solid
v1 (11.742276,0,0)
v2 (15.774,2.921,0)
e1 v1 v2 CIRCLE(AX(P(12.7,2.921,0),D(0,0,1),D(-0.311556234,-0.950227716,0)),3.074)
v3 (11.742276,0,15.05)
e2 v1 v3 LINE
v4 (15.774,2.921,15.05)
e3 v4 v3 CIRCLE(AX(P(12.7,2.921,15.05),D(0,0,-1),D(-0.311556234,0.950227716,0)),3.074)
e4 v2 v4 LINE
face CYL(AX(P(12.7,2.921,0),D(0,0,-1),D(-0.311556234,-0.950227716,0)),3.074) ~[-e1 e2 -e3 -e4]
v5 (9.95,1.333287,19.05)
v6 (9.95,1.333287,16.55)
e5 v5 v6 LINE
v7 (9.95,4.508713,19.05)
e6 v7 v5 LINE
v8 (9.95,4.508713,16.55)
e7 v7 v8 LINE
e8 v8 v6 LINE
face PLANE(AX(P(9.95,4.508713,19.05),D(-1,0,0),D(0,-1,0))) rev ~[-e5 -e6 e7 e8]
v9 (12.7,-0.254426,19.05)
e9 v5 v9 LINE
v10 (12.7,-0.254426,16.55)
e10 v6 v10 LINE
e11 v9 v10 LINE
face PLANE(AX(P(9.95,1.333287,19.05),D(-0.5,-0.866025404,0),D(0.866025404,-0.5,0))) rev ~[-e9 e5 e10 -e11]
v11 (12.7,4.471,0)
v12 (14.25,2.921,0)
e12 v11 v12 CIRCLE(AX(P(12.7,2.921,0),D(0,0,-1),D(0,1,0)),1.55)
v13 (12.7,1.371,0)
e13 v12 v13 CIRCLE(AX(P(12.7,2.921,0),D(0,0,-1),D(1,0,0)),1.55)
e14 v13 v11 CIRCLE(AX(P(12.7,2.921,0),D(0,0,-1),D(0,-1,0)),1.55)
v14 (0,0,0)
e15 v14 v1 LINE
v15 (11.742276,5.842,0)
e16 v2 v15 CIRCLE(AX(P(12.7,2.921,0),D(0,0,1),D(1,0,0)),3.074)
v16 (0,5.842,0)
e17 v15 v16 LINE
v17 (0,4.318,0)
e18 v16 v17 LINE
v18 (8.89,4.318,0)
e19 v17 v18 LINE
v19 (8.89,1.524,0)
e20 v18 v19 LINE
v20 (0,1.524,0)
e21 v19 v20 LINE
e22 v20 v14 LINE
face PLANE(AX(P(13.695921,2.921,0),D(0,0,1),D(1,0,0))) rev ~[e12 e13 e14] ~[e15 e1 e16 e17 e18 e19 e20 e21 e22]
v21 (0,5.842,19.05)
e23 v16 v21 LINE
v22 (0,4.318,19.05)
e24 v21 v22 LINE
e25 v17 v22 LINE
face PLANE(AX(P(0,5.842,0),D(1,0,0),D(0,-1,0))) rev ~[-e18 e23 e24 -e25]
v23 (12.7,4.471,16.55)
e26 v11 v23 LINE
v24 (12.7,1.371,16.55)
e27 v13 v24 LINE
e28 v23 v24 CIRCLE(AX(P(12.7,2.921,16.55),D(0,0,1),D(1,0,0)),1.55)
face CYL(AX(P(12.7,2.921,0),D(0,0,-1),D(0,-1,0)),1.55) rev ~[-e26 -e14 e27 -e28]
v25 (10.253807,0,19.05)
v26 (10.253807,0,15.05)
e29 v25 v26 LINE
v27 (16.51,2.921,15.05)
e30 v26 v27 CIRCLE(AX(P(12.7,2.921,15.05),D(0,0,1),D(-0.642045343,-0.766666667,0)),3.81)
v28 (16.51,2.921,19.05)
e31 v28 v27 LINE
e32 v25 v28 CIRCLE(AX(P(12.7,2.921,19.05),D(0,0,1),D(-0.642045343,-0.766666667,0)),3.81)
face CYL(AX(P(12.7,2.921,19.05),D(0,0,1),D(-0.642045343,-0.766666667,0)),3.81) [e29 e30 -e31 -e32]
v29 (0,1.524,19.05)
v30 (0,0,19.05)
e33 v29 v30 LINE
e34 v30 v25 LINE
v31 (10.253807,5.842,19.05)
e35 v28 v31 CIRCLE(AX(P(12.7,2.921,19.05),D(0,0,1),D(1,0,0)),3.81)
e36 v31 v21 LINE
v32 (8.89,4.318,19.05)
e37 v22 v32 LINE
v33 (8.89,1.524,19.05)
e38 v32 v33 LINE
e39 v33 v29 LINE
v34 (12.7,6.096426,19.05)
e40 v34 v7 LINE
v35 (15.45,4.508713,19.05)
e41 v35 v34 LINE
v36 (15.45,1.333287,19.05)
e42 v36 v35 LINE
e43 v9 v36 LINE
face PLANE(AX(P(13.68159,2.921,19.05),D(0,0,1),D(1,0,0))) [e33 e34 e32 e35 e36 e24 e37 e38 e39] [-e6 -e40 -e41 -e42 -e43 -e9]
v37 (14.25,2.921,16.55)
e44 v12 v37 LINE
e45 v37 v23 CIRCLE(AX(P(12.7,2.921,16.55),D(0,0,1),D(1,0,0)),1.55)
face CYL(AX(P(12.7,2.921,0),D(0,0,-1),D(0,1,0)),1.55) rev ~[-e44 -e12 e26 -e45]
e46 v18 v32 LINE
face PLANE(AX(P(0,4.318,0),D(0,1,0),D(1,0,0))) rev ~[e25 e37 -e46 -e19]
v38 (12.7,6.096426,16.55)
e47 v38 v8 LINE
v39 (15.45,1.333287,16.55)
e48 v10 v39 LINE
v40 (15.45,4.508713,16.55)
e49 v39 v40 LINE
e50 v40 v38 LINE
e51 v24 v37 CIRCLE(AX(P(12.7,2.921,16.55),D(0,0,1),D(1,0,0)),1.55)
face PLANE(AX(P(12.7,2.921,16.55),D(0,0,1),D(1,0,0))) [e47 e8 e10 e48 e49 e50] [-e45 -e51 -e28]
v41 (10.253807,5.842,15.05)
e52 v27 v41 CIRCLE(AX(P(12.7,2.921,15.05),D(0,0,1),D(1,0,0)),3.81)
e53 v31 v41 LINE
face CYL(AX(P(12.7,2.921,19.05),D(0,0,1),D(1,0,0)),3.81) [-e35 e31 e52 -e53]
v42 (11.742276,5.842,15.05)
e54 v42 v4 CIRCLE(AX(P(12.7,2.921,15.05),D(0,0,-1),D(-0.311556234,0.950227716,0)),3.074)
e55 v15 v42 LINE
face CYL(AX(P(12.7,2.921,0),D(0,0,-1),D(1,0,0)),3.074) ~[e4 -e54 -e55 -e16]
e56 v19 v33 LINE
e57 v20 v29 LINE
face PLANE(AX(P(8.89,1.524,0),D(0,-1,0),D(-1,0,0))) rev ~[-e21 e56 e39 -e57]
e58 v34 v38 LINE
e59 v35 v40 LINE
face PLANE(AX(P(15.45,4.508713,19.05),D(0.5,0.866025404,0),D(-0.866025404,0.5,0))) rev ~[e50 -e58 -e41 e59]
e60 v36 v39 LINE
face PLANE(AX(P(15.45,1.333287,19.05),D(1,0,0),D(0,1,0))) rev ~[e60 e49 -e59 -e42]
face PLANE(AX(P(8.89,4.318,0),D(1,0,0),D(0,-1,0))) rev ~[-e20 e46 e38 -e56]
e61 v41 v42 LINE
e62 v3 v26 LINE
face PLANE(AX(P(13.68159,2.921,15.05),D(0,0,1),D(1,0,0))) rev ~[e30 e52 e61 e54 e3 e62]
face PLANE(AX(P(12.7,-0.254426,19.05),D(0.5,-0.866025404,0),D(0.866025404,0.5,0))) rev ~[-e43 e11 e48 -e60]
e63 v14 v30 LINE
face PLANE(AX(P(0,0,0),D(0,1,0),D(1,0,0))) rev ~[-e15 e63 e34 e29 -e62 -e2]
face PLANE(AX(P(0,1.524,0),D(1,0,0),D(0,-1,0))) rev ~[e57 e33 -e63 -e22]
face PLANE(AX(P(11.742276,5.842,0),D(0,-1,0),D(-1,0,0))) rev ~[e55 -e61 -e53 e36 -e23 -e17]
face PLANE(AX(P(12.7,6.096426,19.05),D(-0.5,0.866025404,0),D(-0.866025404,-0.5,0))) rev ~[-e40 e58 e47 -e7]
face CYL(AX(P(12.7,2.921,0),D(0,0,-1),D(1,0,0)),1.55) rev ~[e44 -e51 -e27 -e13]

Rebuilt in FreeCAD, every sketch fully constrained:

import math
import FreeCAD as App
import Part
import Sketcher
from FreeCAD import Vector
Q = App.Units.Quantity

doc = App.newDocument("Part")
body = doc.addObject("PartDesign::Body", "Body")

# Sketch on XY plane
sketch1 = body.newObject("Sketcher::SketchObject", "Sketch")
sketch1.AttachmentSupport = (doc.getObject("XY_Plane"), [""])
sketch1.MapMode = "FlatFace"
sketch1.addGeometry([
    Part.ArcOfCircle(Part.Circle(Vector(12.7, 2.9, 0), Vector(0, 0, 1), 3.1), math.radians(-108), math.radians(0)),  # 0
    Part.ArcOfCircle(Part.Circle(Vector(12.7, 2.9, 0), Vector(0, 0, 1), 3.1), math.radians(0), math.radians(108)),  # 1
    Part.LineSegment(Vector(11.7, 5.8, 0), Vector(0, 5.8, 0)),  # 2
    Part.LineSegment(Vector(0, 5.8, 0), Vector(0, 4.3, 0)),  # 3
    Part.LineSegment(Vector(0, 4.3, 0), Vector(8.9, 4.3, 0)),  # 4
    Part.LineSegment(Vector(8.9, 4.3, 0), Vector(8.9, 1.5, 0)),  # 5
    Part.LineSegment(Vector(8.9, 1.5, 0), Vector(0, 1.5, 0)),  # 6
    Part.LineSegment(Vector(0, 1.5, 0), Vector(0, 0, 0)),  # 7
    Part.LineSegment(Vector(0, 0, 0), Vector(11.7, 0, 0)),  # 8
    Part.ArcOfCircle(Part.Circle(Vector(12.7, 2.9, 0), Vector(0, 0, 1), 1.6), math.radians(0), math.radians(90)),  # 9
    Part.ArcOfCircle(Part.Circle(Vector(12.7, 2.9, 0), Vector(0, 0, 1), 1.6), math.radians(-90), math.radians(0)),  # 10
    Part.ArcOfCircle(Part.Circle(Vector(12.7, 2.9, 0), Vector(0, 0, 1), 1.6), math.radians(90), math.radians(270)),  # 11
], False)
sketch1.addConstraint([
    Sketcher.Constraint("Tangent", 0, 2, 1, 1),
    Sketcher.Constraint("Coincident", 1, 2, 2, 1),
    Sketcher.Constraint("Coincident", 2, 2, 3, 1),
    Sketcher.Constraint("Coincident", 3, 2, 4, 1),
    Sketcher.Constraint("Coincident", 4, 2, 5, 1),
    Sketcher.Constraint("Coincident", 5, 2, 6, 1),
    Sketcher.Constraint("Coincident", 6, 2, 7, 1),
    Sketcher.Constraint("Coincident", 7, 2, 8, 1),
    Sketcher.Constraint("Coincident", 8, 2, 0, 1),
    Sketcher.Constraint("Tangent", 9, 1, 10, 2),
    Sketcher.Constraint("Tangent", 10, 1, 11, 2),
    Sketcher.Constraint("Tangent", 11, 1, 9, 2),
    Sketcher.Constraint("Horizontal", 2),
    Sketcher.Constraint("Vertical", 3),
    Sketcher.Constraint("Horizontal", 4),
    Sketcher.Constraint("Vertical", 5),
    Sketcher.Constraint("Horizontal", 6),
    Sketcher.Constraint("Vertical", 7),
    Sketcher.Constraint("Horizontal", 8),
    Sketcher.Constraint("Coincident", 7, 2, -1, 1),
    Sketcher.Constraint("Coincident", 9, 3, 0, 3),
    Sketcher.Constraint("Equal", 0, 1),
    Sketcher.Constraint("PointOnObject", 2, 2, -2),
    Sketcher.Constraint("Horizontal", 11, 3, 0, 2),
    Sketcher.Constraint("Horizontal", 0, 2, 9, 1),
    Sketcher.Constraint("Vertical", 1, 2, 8, 2),
    Sketcher.Constraint("Vertical", 11, 3, 10, 1),
    Sketcher.Constraint("Vertical", 10, 1, 11, 1),
    Sketcher.Constraint("Equal", 3, 7),
    Sketcher.Constraint("DistanceX", 4, 1, 4, 2, Q("0.35 in")),
    Sketcher.Constraint("DistanceY", 3, 2, 3, 1, Q("0.06 in")),
    Sketcher.Constraint("DistanceY", 5, 2, 5, 1, Q("0.11 in")),
    Sketcher.Constraint("DistanceX", -1, 1, 0, 3, Q("0.5 in")),
    Sketcher.Constraint("Radius", 0, 3.074),
    Sketcher.Constraint("Radius", 9, 1.55),
])
pad1 = body.newObject("PartDesign::Pad", "Pad")
pad1.Profile = sketch1
pad1.Length = Q("0.75 in")

# Sketch on XY plane
sketch2 = body.newObject("Sketcher::SketchObject", "Sketch001")
sketch2.AttachmentSupport = (doc.getObject("XY_Plane"), [""])
sketch2.MapMode = "FlatFace"
sketch2.AttachmentOffset = App.Placement(Vector(0, 0, 0.75 * 25.4), App.Rotation())
sketch2.addGeometry([
    Part.ArcOfCircle(Part.Circle(Vector(12.7, 2.9, 0), Vector(0, 0, 1), 3.8), math.radians(-130), math.radians(0)),  # 0
    Part.ArcOfCircle(Part.Circle(Vector(12.7, 2.9, 0), Vector(0, 0, 1), 3.8), math.radians(0), math.radians(130)),  # 1
    Part.LineSegment(Vector(10.3, 5.8, 0), Vector(11.7, 5.8, 0)),  # 2
    Part.ArcOfCircle(Part.Circle(Vector(12.7, 2.9, 0), Vector(0, 0, 1), 3.1), math.radians(-108), math.radians(108)),  # 3
    Part.LineSegment(Vector(11.7, 0, 0), Vector(10.3, 0, 0)),  # 4
], False)
sketch2.addConstraint([
    Sketcher.Constraint("Tangent", 0, 2, 1, 1),
    Sketcher.Constraint("Coincident", 1, 2, 2, 1),
    Sketcher.Constraint("Coincident", 2, 2, 3, 2),
    Sketcher.Constraint("Coincident", 3, 1, 4, 1),
    Sketcher.Constraint("Coincident", 4, 2, 0, 1),
    Sketcher.Constraint("Horizontal", 2),
    Sketcher.Constraint("Horizontal", 4),
    Sketcher.Constraint("Coincident", 3, 3, 0, 3),
    Sketcher.Constraint("Equal", 0, 1),
    Sketcher.Constraint("PointOnObject", 3, 1, -1),
    Sketcher.Constraint("Horizontal", 3, 3, 0, 2),
    Sketcher.Constraint("Vertical", 2, 2, 3, 1),
    Sketcher.Constraint("Radius", 0, Q("0.15 in")),
    Sketcher.Constraint("DistanceX", -1, 1, 0, 3, Q("0.5 in")),
    Sketcher.Constraint("DistanceY", -1, 1, 1, 2, Q("0.23 in")),
    Sketcher.Constraint("Radius", 3, 3.074),
])
pad2 = body.newObject("PartDesign::Pad", "Pad001")
pad2.Profile = sketch2
pad2.Length = 4
pad2.Reversed = True

# Sketch on XY plane
sketch3 = body.newObject("Sketcher::SketchObject", "Sketch002")
sketch3.AttachmentSupport = (doc.getObject("XY_Plane"), [""])
sketch3.MapMode = "FlatFace"
sketch3.AttachmentOffset = App.Placement(Vector(0, 0, 0.75 * 25.4), App.Rotation())
sketch3.addGeometry([
    Part.LineSegment(Vector(15.4, 4.5, 0), Vector(12.7, 6.1, 0)),  # 0
    Part.LineSegment(Vector(12.7, 6.1, 0), Vector(9.9, 4.5, 0)),  # 1
    Part.LineSegment(Vector(9.9, 4.5, 0), Vector(9.9, 1.3, 0)),  # 2
    Part.LineSegment(Vector(9.9, 1.3, 0), Vector(12.7, -0.3, 0)),  # 3
    Part.LineSegment(Vector(12.7, -0.3, 0), Vector(15.4, 1.3, 0)),  # 4
    Part.LineSegment(Vector(15.4, 1.3, 0), Vector(15.4, 4.5, 0)),  # 5
    Part.Circle(Vector(12.7, 2.9, 0), Vector(0, 0, 1), 1.6),  # 6
], False)
sketch3.addConstraint([
    Sketcher.Constraint("Coincident", 0, 2, 1, 1),
    Sketcher.Constraint("Coincident", 1, 2, 2, 1),
    Sketcher.Constraint("Coincident", 2, 2, 3, 1),
    Sketcher.Constraint("Coincident", 3, 2, 4, 1),
    Sketcher.Constraint("Coincident", 4, 2, 5, 1),
    Sketcher.Constraint("Coincident", 5, 2, 0, 1),
    Sketcher.Constraint("Vertical", 2),
    Sketcher.Constraint("Vertical", 5),
    Sketcher.Constraint("Parallel", 0, 3),
    Sketcher.Constraint("Parallel", 1, 4),
    Sketcher.Constraint("Horizontal", 2, 2, 4, 2),
    Sketcher.Constraint("Horizontal", 1, 2, 5, 2),
    Sketcher.Constraint("Vertical", 6, 3, 0, 2),
    Sketcher.Constraint("Vertical", 0, 2, 3, 2),
    Sketcher.Constraint("Angle", 0, Q("150 deg")),
    Sketcher.Constraint("DistanceX", -1, 1, 6, 3, Q("0.5 in")),
    Sketcher.Constraint("Diameter", 6, 3.1),
    Sketcher.Constraint("DistanceY", -1, 1, 6, 3, Q("0.115 in")),
    Sketcher.Constraint("DistanceX", -1, 1, 1, 2, 9.95),
    Sketcher.Constraint("DistanceY", 2, 2, 2, 1, 3.175426),
    Sketcher.Constraint("DistanceY", -1, 1, 0, 2, 6.096426),
])
pocket1 = body.newObject("PartDesign::Pocket", "Pocket")
pocket1.Profile = sketch3
pocket1.Length = 2.5

doc.recompute()
